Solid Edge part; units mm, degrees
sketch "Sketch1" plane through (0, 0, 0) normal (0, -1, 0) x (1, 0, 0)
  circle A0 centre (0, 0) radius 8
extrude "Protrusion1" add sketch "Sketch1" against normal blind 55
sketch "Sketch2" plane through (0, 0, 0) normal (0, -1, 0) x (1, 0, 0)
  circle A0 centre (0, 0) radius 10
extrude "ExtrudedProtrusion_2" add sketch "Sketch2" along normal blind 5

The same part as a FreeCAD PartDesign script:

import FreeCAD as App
import Part
import Sketcher

V = App.Vector

doc = App.newDocument("Part")
params = doc.addObject("Spreadsheet::Sheet", "Params")
for row, (alias, value) in enumerate([
    ("sketch1_diameter", "16 mm"),
    ("pad1_length", "55 mm"),
    ("sketch2_diameter", "20 mm"),
    ("pad2_length", "5 mm"),
], start=1):
    params.set(f"A{row}", alias)
    params.set(f"B{row}", "=" + value)
    params.setAlias(f"B{row}", alias)

body = doc.addObject("PartDesign::Body", "Body")

sketch1 = body.newObject("Sketcher::SketchObject", "Sketch")
sketch1.AttachmentSupport = (doc.getObject("XZ_Plane"), [""])
sketch1.MapMode = "FlatFace"
sketch1.addGeometry(Part.Circle(V(0, 0, 0), V(0, 0, 1), 8), False)
sketch1.addConstraint([
    Sketcher.Constraint("Coincident", 0, 3, -1, 1),
    Sketcher.Constraint("Diameter", 0, 16.0),
])
sketch1.setExpression("Constraints[1]", "Params.sketch1_diameter")
pad1 = body.newObject("PartDesign::Pad", "Pad")
pad1.Profile = sketch1
pad1.setExpression("Length", "Params.pad1_length")
pad1.Reversed = True

sketch2 = body.newObject("Sketcher::SketchObject", "Sketch001")
sketch2.AttachmentSupport = (doc.getObject("XZ_Plane"), [""])
sketch2.MapMode = "FlatFace"
sketch2.addGeometry(Part.Circle(V(0, 0, 0), V(0, 0, 1), 10), False)
sketch2.addConstraint([
    Sketcher.Constraint("Coincident", 0, 3, -1, 1),
    Sketcher.Constraint("Diameter", 0, 20.0),
])
sketch2.setExpression("Constraints[1]", "Params.sketch2_diameter")
pad2 = body.newObject("PartDesign::Pad", "Pad001")
pad2.Profile = sketch2
pad2.setExpression("Length", "Params.pad2_length")

doc.recompute()
